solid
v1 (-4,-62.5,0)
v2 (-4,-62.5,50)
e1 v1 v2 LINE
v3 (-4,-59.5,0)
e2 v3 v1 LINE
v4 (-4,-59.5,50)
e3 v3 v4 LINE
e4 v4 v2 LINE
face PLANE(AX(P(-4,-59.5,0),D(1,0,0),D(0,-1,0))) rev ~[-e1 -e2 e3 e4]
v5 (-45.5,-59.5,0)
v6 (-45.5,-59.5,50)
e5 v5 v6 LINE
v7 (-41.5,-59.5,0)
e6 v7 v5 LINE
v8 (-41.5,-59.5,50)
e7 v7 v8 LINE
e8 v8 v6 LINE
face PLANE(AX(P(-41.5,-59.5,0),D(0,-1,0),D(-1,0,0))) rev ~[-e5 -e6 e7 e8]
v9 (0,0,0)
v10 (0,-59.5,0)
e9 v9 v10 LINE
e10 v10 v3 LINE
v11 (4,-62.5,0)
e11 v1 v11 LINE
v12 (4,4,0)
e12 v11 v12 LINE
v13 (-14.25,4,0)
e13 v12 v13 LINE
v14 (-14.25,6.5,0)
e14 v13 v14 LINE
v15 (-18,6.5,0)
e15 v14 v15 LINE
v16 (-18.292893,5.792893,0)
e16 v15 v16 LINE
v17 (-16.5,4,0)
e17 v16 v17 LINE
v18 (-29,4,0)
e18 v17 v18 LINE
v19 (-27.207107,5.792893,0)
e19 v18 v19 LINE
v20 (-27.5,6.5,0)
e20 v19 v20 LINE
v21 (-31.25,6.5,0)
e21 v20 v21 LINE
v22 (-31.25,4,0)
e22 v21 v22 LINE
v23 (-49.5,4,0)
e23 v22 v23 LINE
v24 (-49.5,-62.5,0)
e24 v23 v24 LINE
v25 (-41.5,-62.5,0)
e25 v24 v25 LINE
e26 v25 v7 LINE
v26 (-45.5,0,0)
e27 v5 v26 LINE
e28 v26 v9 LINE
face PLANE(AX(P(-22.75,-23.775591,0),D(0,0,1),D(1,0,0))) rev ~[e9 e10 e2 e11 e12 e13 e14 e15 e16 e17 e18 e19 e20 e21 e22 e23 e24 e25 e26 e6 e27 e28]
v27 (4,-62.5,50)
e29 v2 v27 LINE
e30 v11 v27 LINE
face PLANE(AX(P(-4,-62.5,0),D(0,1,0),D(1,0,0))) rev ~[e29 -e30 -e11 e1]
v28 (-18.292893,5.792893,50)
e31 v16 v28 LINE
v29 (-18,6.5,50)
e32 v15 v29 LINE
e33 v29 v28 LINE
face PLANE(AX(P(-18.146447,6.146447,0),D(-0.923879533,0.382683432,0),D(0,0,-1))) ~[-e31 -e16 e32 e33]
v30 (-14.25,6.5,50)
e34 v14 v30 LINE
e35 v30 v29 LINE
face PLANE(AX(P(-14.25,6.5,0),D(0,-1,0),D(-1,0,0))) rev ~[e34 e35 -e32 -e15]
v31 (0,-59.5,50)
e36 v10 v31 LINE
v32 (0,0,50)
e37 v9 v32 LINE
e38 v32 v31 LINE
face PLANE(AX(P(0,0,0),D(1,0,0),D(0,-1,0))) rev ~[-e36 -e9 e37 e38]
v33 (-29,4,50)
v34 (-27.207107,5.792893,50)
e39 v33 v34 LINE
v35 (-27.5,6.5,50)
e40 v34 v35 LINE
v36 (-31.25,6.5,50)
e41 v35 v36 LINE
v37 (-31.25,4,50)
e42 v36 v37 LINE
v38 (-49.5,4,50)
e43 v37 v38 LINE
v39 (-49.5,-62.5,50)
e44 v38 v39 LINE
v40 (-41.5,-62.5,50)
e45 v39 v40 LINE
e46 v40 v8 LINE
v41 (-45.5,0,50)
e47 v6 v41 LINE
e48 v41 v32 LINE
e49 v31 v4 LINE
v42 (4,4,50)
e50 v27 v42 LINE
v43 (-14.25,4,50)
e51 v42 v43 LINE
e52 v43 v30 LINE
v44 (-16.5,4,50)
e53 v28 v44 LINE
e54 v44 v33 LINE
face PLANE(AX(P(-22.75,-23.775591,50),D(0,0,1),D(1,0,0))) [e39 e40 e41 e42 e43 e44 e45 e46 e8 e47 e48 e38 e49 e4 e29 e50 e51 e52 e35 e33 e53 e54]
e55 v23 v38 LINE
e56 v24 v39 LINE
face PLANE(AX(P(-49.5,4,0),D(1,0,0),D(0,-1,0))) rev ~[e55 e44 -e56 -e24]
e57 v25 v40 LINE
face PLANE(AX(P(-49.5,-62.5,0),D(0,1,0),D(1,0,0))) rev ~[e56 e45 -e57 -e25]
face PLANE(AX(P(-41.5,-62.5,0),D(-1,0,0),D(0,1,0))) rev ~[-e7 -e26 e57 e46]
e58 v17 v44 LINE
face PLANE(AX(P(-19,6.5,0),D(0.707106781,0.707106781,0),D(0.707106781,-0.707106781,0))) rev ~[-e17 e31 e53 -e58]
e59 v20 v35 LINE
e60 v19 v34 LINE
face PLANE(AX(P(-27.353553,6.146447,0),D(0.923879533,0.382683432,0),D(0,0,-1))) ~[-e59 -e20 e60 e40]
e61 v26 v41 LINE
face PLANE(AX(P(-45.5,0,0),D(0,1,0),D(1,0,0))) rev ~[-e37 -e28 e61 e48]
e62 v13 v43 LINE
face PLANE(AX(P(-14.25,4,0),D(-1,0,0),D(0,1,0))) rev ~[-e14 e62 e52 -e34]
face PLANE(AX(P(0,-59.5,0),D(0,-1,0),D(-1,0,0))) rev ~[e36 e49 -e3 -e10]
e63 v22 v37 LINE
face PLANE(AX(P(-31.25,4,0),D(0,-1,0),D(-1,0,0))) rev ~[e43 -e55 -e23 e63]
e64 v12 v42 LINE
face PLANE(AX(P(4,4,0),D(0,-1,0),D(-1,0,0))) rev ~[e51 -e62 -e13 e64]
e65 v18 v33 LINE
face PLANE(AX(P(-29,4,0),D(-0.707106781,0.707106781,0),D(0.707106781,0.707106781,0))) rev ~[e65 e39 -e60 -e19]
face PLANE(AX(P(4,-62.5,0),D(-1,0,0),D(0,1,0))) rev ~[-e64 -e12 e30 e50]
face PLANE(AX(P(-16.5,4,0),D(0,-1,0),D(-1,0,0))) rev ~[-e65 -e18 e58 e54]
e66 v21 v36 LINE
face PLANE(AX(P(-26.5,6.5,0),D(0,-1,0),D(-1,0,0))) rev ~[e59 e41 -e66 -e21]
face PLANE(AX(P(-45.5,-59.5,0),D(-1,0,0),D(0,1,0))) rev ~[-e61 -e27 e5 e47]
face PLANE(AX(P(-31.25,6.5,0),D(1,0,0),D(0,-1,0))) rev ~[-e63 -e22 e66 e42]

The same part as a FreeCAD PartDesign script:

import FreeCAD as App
import Part
import Sketcher

V = App.Vector


def edges_at(feature, points):
    """Names of the edges that pass closest to the given points."""
    edges = feature.Shape.Edges
    near = lambda p: min(range(len(edges)), key=lambda i: edges[i].distToShape(Part.Vertex(*p))[0])
    return sorted({f"Edge{near(p) + 1}" for p in points})


def add_polygon(sketch, points):
    """Adds a closed chain of lines whose ends are joined by coincident constraints."""
    first, n = sketch.GeometryCount, len(points)
    for a, b in zip(points, points[1:] + points[:1]):
        sketch.addGeometry(Part.LineSegment(App.Vector(*a, 0), App.Vector(*b, 0)), False)
    for i in range(n):
        sketch.addConstraint(Sketcher.Constraint("Coincident", first + i, 2, first + (i + 1) % n, 1))

doc = App.newDocument("Part")
body = doc.addObject("PartDesign::Body", "Body")

# Sketch on XY plane
sketch1 = doc.addObject("Sketcher::SketchObject", "Sketch")
body.addObject(sketch1)
sketch1.AttachmentSupport = (doc.XY_Plane, [""])
sketch1.MapMode = "FlatFace"
add_polygon(sketch1, [(-45.5, 0), (0, 0), (0, -59.5), (-4, -59.5), (-4, -62.5), (4, -62.5), (4, 4), (-14.2, 4), (-14.2, 6.5), (-19, 6.5), (-16.5, 4), (-29, 4), (-26.5, 6.5), (-31.2, 6.5), (-31.2, 4), (-49.5, 4), (-49.5, -62.5), (-41.5, -62.5), (-41.5, -59.5), (-45.5, -59.5)])  # lines 0-19
sketch1.addConstraint(Sketcher.Constraint("Horizontal", 0))
sketch1.addConstraint(Sketcher.Constraint("Vertical", 1))
sketch1.addConstraint(Sketcher.Constraint("Horizontal", 2))
sketch1.addConstraint(Sketcher.Constraint("Vertical", 3))
sketch1.addConstraint(Sketcher.Constraint("Horizontal", 4))
sketch1.addConstraint(Sketcher.Constraint("Vertical", 5))
sketch1.addConstraint(Sketcher.Constraint("Horizontal", 6))
sketch1.addConstraint(Sketcher.Constraint("Vertical", 7))
sketch1.addConstraint(Sketcher.Constraint("Horizontal", 8))
sketch1.addConstraint(Sketcher.Constraint("Horizontal", 10))
sketch1.addConstraint(Sketcher.Constraint("Horizontal", 12))
sketch1.addConstraint(Sketcher.Constraint("Vertical", 13))
sketch1.addConstraint(Sketcher.Constraint("Horizontal", 14))
sketch1.addConstraint(Sketcher.Constraint("Vertical", 15))
sketch1.addConstraint(Sketcher.Constraint("Horizontal", 16))
sketch1.addConstraint(Sketcher.Constraint("Vertical", 17))
sketch1.addConstraint(Sketcher.Constraint("Horizontal", 18))
sketch1.addConstraint(Sketcher.Constraint("Vertical", 19))
sketch1.addConstraint(Sketcher.Constraint("Coincident", 0, 2, -1, 1))
sketch1.addConstraint(Sketcher.Constraint("Perpendicular", 9, 11))
sketch1.addConstraint(Sketcher.Constraint("Horizontal", 6, 2, 9, 2))
sketch1.addConstraint(Sketcher.Constraint("Horizontal", 8, 2, 11, 2))
sketch1.addConstraint(Sketcher.Constraint("Horizontal", 10, 2, 13, 2))
sketch1.addConstraint(Sketcher.Constraint("Horizontal", 4, 2, 15, 2))
sketch1.addConstraint(Sketcher.Constraint("Horizontal", 2, 2, 17, 2))
sketch1.addConstraint(Sketcher.Constraint("Equal", 8, 12))
sketch1.addConstraint(Sketcher.Constraint("Equal", 6, 14))
sketch1.addConstraint(Sketcher.Constraint("Equal", 4, 16))
sketch1.addConstraint(Sketcher.Constraint("Equal", 2, 18))
sketch1.addConstraint(Sketcher.Constraint("Equal", 9, 11))
sketch1.addConstraint(Sketcher.Constraint("DistanceX", 2, 2, 2, 1, 4.0))
sketch1.addConstraint(Sketcher.Constraint("DistanceX", 4, 1, 4, 2, 8.0))
sketch1.addConstraint(Sketcher.Constraint("DistanceY", 3, 2, 3, 1, 3.0))
sketch1.addConstraint(Sketcher.Constraint("DistanceX", 0, 1, 0, 2, 45.5))
sketch1.addConstraint(Sketcher.Constraint("DistanceX", 10, 2, 10, 1, 12.5))
sketch1.addConstraint(Sketcher.Constraint("DistanceY", 1, 2, 1, 1, 59.5))
sketch1.addConstraint(Sketcher.Constraint("DistanceY", 5, 1, 5, 2, 66.5))
sketch1.addConstraint(Sketcher.Constraint("DistanceY", 7, 1, 7, 2, 2.5))
sketch1.addConstraint(Sketcher.Constraint("DistanceX", 12, 2, 7, 2, 17.0))
pad1 = doc.addObject("PartDesign::Pad", "Pad")
body.addObject(pad1)
pad1.Profile = sketch1
pad1.Length = 50
doc.recompute()

chamfer = doc.addObject("PartDesign::Chamfer", "Chamfer")
body.addObject(chamfer)
chamfer.Base = (pad1, edges_at(pad1, [(-19, 6.5, 25), (-26.5, 6.5, 25)]))
chamfer.Size = 1

doc.recompute()
